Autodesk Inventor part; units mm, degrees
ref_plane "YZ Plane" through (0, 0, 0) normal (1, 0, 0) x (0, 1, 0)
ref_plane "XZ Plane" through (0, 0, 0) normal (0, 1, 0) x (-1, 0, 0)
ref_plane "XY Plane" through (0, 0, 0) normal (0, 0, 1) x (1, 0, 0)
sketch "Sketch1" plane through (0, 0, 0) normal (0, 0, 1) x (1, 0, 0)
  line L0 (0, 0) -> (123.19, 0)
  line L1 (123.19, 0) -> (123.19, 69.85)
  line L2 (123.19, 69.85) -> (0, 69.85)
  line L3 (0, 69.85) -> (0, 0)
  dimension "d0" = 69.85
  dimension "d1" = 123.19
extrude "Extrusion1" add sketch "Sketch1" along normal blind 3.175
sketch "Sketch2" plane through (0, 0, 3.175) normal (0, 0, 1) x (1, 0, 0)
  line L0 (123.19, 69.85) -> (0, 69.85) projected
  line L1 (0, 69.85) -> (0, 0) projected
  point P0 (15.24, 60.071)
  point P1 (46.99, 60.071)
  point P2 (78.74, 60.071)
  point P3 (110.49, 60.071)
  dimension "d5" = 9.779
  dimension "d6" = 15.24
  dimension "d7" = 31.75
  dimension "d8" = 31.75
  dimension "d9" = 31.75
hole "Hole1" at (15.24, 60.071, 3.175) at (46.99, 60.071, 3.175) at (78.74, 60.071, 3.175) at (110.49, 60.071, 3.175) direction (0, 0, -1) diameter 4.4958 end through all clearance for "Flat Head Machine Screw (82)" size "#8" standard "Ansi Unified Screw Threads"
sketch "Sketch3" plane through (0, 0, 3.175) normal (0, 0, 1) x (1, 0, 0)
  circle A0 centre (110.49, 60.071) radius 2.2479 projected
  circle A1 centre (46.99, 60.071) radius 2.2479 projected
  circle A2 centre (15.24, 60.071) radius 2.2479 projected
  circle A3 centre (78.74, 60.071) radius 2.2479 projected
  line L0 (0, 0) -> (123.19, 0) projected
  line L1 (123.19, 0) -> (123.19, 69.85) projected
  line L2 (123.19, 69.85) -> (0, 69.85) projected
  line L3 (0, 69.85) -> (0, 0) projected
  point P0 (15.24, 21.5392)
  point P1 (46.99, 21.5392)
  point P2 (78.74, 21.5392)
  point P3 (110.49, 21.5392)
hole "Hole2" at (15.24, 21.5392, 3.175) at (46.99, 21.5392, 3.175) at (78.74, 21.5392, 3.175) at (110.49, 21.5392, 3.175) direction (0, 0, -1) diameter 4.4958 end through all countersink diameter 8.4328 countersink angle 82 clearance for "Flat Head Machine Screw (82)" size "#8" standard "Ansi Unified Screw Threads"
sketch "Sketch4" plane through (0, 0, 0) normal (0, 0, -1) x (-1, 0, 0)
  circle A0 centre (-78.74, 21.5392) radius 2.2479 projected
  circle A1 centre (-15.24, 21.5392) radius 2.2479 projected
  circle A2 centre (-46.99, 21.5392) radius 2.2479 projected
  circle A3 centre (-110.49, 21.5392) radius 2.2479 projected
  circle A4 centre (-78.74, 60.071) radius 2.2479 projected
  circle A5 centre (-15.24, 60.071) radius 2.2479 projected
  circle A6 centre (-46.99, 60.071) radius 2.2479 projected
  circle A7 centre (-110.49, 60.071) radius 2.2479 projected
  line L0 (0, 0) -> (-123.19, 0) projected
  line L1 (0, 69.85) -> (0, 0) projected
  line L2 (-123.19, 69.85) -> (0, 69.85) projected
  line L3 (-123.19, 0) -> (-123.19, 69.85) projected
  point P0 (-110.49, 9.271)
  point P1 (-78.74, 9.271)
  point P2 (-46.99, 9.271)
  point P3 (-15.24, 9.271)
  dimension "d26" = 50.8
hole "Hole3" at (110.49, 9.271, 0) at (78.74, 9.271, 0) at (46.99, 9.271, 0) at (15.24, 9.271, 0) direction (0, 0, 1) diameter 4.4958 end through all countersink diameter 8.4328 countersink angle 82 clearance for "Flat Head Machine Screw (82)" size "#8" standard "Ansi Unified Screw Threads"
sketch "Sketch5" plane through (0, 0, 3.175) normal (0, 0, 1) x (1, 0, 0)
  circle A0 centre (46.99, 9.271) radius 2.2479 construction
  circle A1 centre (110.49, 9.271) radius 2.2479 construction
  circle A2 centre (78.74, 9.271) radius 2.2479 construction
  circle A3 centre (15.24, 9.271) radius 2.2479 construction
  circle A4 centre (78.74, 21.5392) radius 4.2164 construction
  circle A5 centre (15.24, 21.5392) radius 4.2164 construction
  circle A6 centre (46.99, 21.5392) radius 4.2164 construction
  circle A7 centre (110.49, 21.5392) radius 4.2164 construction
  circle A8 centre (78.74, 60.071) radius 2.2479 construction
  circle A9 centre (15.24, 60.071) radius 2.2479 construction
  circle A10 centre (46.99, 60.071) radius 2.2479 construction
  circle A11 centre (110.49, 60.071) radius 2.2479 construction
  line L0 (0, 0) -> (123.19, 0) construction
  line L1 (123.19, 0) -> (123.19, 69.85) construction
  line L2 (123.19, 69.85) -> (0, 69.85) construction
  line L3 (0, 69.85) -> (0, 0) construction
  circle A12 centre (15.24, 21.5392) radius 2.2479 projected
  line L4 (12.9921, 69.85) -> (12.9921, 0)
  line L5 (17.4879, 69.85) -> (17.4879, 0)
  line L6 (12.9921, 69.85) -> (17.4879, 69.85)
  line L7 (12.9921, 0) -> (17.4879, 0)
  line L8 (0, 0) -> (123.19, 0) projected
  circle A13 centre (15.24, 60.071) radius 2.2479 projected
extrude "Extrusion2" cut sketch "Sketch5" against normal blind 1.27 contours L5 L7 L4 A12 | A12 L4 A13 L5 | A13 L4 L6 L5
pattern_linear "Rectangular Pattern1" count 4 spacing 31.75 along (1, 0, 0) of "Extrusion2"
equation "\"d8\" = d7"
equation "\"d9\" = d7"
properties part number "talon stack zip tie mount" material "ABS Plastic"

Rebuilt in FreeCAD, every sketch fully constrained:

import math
import FreeCAD as App
import Part
import Sketcher
from FreeCAD import Vector
Q = App.Units.Quantity

doc = App.newDocument("Part")
params = doc.addObject("Spreadsheet::Sheet", "Params")
for row, (alias, value) in enumerate([
    ("sketch1_width", "4.85 in"),
    ("sketch1_height", "2.75 in"),
    ("pad1_length", "0.125 in"),
    ("sketch2_diameter", "0.177 in"),
    ("hole_diameter", "0.177 in"),
    ("sketch3_diameter", "0.177 in"),
    ("hole2_diameter", "0.177 in"),
    ("hole2_csink_diameter", "0.332 in"),
    ("sketch4_diameter", "0.177 in"),
    ("hole3_diameter", "0.177 in"),
    ("hole3_csink_diameter", "0.332 in"),
    ("sketch5_height", "0.848 in"),
    ("sketch5_height2", "1.517 in"),
    ("sketch5_height3", "0.385 in"),
    ("pocket1_length", "0.05 in"),
    ("linearpattern_pitch", "1.25 in"),
], start=1):
    params.set(f"A{row}", alias)
    params.set(f"B{row}", "=" + value)
    params.setAlias(f"B{row}", alias)

body = doc.addObject("PartDesign::Body", "Body")

# Sketch on XY plane
sketch1 = doc.addObject("Sketcher::SketchObject", "Sketch")
body.addObject(sketch1)
sketch1.AttachmentSupport = (doc.XY_Plane, [""])
sketch1.MapMode = "FlatFace"
sketch1.addGeometry(Part.LineSegment(Vector(0, 69.85, 0), Vector(0, 0, 0)), False)
sketch1.addGeometry(Part.LineSegment(Vector(0, 0, 0), Vector(123.19, 0, 0)), False)
sketch1.addGeometry(Part.LineSegment(Vector(123.19, 0, 0), Vector(123.19, 69.85, 0)), False)
sketch1.addGeometry(Part.LineSegment(Vector(123.19, 69.85, 0), Vector(0, 69.85, 0)), False)
sketch1.addConstraint(Sketcher.Constraint("Coincident", 0, 2, 1, 1))
sketch1.addConstraint(Sketcher.Constraint("Coincident", 1, 2, 2, 1))
sketch1.addConstraint(Sketcher.Constraint("Coincident", 2, 2, 3, 1))
sketch1.addConstraint(Sketcher.Constraint("Coincident", 3, 2, 0, 1))
sketch1.addConstraint(Sketcher.Constraint("Vertical", 0))
sketch1.addConstraint(Sketcher.Constraint("Horizontal", 1))
sketch1.addConstraint(Sketcher.Constraint("Vertical", 2))
sketch1.addConstraint(Sketcher.Constraint("Horizontal", 3))
sketch1.addConstraint(Sketcher.Constraint("Coincident", 0, 2, -1, 1))
sketch1.addConstraint(Sketcher.Constraint("DistanceX", 1, 1, 1, 2, Q("4.85 in")))
sketch1.addConstraint(Sketcher.Constraint("DistanceY", 0, 2, 0, 1, Q("2.75 in")))
sketch1.setExpression("Constraints[9]", "Params.sketch1_width")
sketch1.setExpression("Constraints[10]", "Params.sketch1_height")
pad1 = doc.addObject("PartDesign::Pad", "Pad")
body.addObject(pad1)
pad1.Profile = sketch1
pad1.setExpression("Length", "Params.pad1_length")

# Sketch on XY plane
sketch2 = doc.addObject("Sketcher::SketchObject", "Sketch001")
body.addObject(sketch2)
sketch2.AttachmentSupport = (doc.XY_Plane, [""])
sketch2.MapMode = "FlatFace"
sketch2.AttachmentOffset = App.Placement(Vector(0, 0, 0.125 * 25.4), App.Rotation())
sketch2.addGeometry(Part.Circle(Vector(15.24, 60.071, 0), Vector(0, 0, 1), 2.2479), False)
sketch2.addGeometry(Part.Circle(Vector(46.99, 60.071, 0), Vector(0, 0, 1), 2.2479), False)
sketch2.addGeometry(Part.Circle(Vector(78.74, 60.071, 0), Vector(0, 0, 1), 2.2479), False)
sketch2.addGeometry(Part.Circle(Vector(110.49, 60.071, 0), Vector(0, 0, 1), 2.2479), False)
sketch2.addConstraint(Sketcher.Constraint("Equal", 0, 1))
sketch2.addConstraint(Sketcher.Constraint("Equal", 1, 2))
sketch2.addConstraint(Sketcher.Constraint("Equal", 2, 3))
sketch2.addConstraint(Sketcher.Constraint("Horizontal", 0, 3, 1, 3))
sketch2.addConstraint(Sketcher.Constraint("Horizontal", 1, 3, 2, 3))
sketch2.addConstraint(Sketcher.Constraint("Horizontal", 2, 3, 3, 3))
sketch2.addConstraint(Sketcher.Constraint("Diameter", 0, Q("0.177 in")))
sketch2.addConstraint(Sketcher.Constraint("DistanceX", -1, 1, 0, 3, Q("0.6 in")))
sketch2.addConstraint(Sketcher.Constraint("DistanceX", -1, 1, 2, 3, Q("3.1 in")))
sketch2.addConstraint(Sketcher.Constraint("DistanceX", 1, 3, 3, 3, Q("2.5 in")))
sketch2.addConstraint(Sketcher.Constraint("DistanceX", -1, 1, 1, 3, Q("1.85 in")))
sketch2.addConstraint(Sketcher.Constraint("DistanceY", -1, 1, 0, 3, Q("2.365 in")))
sketch2.setExpression("Constraints[6]", "Params.sketch2_diameter")
doc.recompute()
hole = doc.addObject("PartDesign::Hole", "Hole")
body.addObject(hole)
hole.Profile = sketch2
hole.ThreadType = "None"
hole.setExpression("Diameter", "Params.hole_diameter")
hole.DepthType = "ThroughAll"

# Sketch on XY plane
sketch3 = doc.addObject("Sketcher::SketchObject", "Sketch002")
body.addObject(sketch3)
sketch3.AttachmentSupport = (doc.XY_Plane, [""])
sketch3.MapMode = "FlatFace"
sketch3.AttachmentOffset = App.Placement(Vector(0, 0, 0.125 * 25.4), App.Rotation())
sketch3.addGeometry(Part.Circle(Vector(15.24, 21.5392, 0), Vector(0, 0, 1), 2.2479), False)
sketch3.addGeometry(Part.Circle(Vector(46.99, 21.5392, 0), Vector(0, 0, 1), 2.2479), False)
sketch3.addGeometry(Part.Circle(Vector(78.74, 21.5392, 0), Vector(0, 0, 1), 2.2479), False)
sketch3.addGeometry(Part.Circle(Vector(110.49, 21.5392, 0), Vector(0, 0, 1), 2.2479), False)
sketch3.addConstraint(Sketcher.Constraint("Equal", 0, 1))
sketch3.addConstraint(Sketcher.Constraint("Equal", 1, 2))
sketch3.addConstraint(Sketcher.Constraint("Equal", 2, 3))
sketch3.addConstraint(Sketcher.Constraint("Horizontal", 0, 3, 1, 3))
sketch3.addConstraint(Sketcher.Constraint("Horizontal", 1, 3, 2, 3))
sketch3.addConstraint(Sketcher.Constraint("Horizontal", 2, 3, 3, 3))
sketch3.addConstraint(Sketcher.Constraint("Diameter", 0, Q("0.177 in")))
sketch3.addConstraint(Sketcher.Constraint("DistanceX", -1, 1, 0, 3, Q("0.6 in")))
sketch3.addConstraint(Sketcher.Constraint("DistanceX", -1, 1, 2, 3, Q("3.1 in")))
sketch3.addConstraint(Sketcher.Constraint("DistanceX", 1, 3, 3, 3, Q("2.5 in")))
sketch3.addConstraint(Sketcher.Constraint("DistanceX", -1, 1, 1, 3, Q("1.85 in")))
sketch3.addConstraint(Sketcher.Constraint("DistanceY", -1, 1, 0, 3, Q("0.848 in")))
sketch3.setExpression("Constraints[6]", "Params.sketch3_diameter")
doc.recompute()
hole2 = doc.addObject("PartDesign::Hole", "Hole001")
body.addObject(hole2)
hole2.Profile = sketch3
hole2.ThreadType = "None"
hole2.setExpression("Diameter", "Params.hole2_diameter")
hole2.DepthType = "ThroughAll"
hole2.HoleCutType = "Countersink"
hole2.setExpression("HoleCutDiameter", "Params.hole2_csink_diameter")
hole2.HoleCutCountersinkAngle = 82

# Sketch on XY plane
sketch4 = doc.addObject("Sketcher::SketchObject", "Sketch003")
body.addObject(sketch4)
sketch4.AttachmentSupport = (doc.XY_Plane, [""])
sketch4.MapMode = "FlatFace"
sketch4.addGeometry(Part.Circle(Vector(110.49, 9.271, 0), Vector(0, 0, 1), 2.2479), False)
sketch4.addGeometry(Part.Circle(Vector(78.74, 9.271, 0), Vector(0, 0, 1), 2.2479), False)
sketch4.addGeometry(Part.Circle(Vector(46.99, 9.271, 0), Vector(0, 0, 1), 2.2479), False)
sketch4.addGeometry(Part.Circle(Vector(15.24, 9.271, 0), Vector(0, 0, 1), 2.2479), False)
sketch4.addConstraint(Sketcher.Constraint("Equal", 0, 1))
sketch4.addConstraint(Sketcher.Constraint("Equal", 1, 2))
sketch4.addConstraint(Sketcher.Constraint("Equal", 2, 3))
sketch4.addConstraint(Sketcher.Constraint("Horizontal", 0, 3, 1, 3))
sketch4.addConstraint(Sketcher.Constraint("Horizontal", 1, 3, 2, 3))
sketch4.addConstraint(Sketcher.Constraint("Horizontal", 2, 3, 3, 3))
sketch4.addConstraint(Sketcher.Constraint("Diameter", 0, Q("0.177 in")))
sketch4.addConstraint(Sketcher.Constraint("DistanceX", -1, 1, 1, 3, Q("3.1 in")))
sketch4.addConstraint(Sketcher.Constraint("DistanceX", -1, 1, 3, 3, Q("0.6 in")))
sketch4.addConstraint(Sketcher.Constraint("DistanceX", 2, 3, 0, 3, Q("2.5 in")))
sketch4.addConstraint(Sketcher.Constraint("DistanceX", -1, 1, 0, 3, Q("4.35 in")))
sketch4.addConstraint(Sketcher.Constraint("DistanceY", -1, 1, 0, 3, Q("0.365 in")))
sketch4.setExpression("Constraints[6]", "Params.sketch4_diameter")
doc.recompute()
hole3 = doc.addObject("PartDesign::Hole", "Hole002")
body.addObject(hole3)
hole3.Profile = sketch4
hole3.ThreadType = "None"
hole3.setExpression("Diameter", "Params.hole3_diameter")
hole3.DepthType = "ThroughAll"
hole3.HoleCutType = "Countersink"
hole3.setExpression("HoleCutDiameter", "Params.hole3_csink_diameter")
hole3.HoleCutCountersinkAngle = 82
hole3.Reversed = True

# Sketch on XY plane
sketch5 = doc.addObject("Sketcher::SketchObject", "Sketch004")
body.addObject(sketch5)
sketch5.AttachmentSupport = (doc.XY_Plane, [""])
sketch5.MapMode = "FlatFace"
sketch5.AttachmentOffset = App.Placement(Vector(0, 0, 0.125 * 25.4), App.Rotation())
sketch5.addGeometry(Part.LineSegment(Vector(17.4879, 0, 0), Vector(17.4879, 21.5392, 0)), False)
sketch5.addGeometry(Part.ArcOfCircle(Part.Circle(Vector(15.24, 21.5392, 0), Vector(0, 0, 1), 2.2479), math.radians(180), math.radians(360)), False)
sketch5.addGeometry(Part.LineSegment(Vector(12.9921, 21.5392, 0), Vector(12.9921, 0, 0)), False)
sketch5.addGeometry(Part.LineSegment(Vector(12.9921, 0, 0), Vector(17.4879, 0, 0)), False)
sketch5.addGeometry(Part.ArcOfCircle(Part.Circle(Vector(15.24, 21.5392, 0), Vector(0, 0, 1), 2.2479), math.radians(0), math.radians(180)), False)
sketch5.addGeometry(Part.LineSegment(Vector(17.4879, 21.5392, 0), Vector(17.4879, 60.071, 0)), False)
sketch5.addGeometry(Part.ArcOfCircle(Part.Circle(Vector(15.24, 60.071, 0), Vector(0, 0, 1), 2.2479), math.radians(180), math.radians(360)), False)
sketch5.addGeometry(Part.LineSegment(Vector(12.9921, 60.071, 0), Vector(12.9921, 21.5392, 0)), False)
sketch5.addGeometry(Part.ArcOfCircle(Part.Circle(Vector(15.24, 60.071, 0), Vector(0, 0, 1), 2.2479), math.radians(0), math.radians(180)), False)
sketch5.addGeometry(Part.LineSegment(Vector(17.4879, 60.071, 0), Vector(17.4879, 69.85, 0)), False)
sketch5.addGeometry(Part.LineSegment(Vector(17.4879, 69.85, 0), Vector(12.9921, 69.85, 0)), False)
sketch5.addGeometry(Part.LineSegment(Vector(12.9921, 69.85, 0), Vector(12.9921, 60.071, 0)), False)
sketch5.addConstraint(Sketcher.Constraint("Tangent", 0, 2, 1, 2))
sketch5.addConstraint(Sketcher.Constraint("Tangent", 1, 1, 2, 1))
sketch5.addConstraint(Sketcher.Constraint("Coincident", 2, 2, 3, 1))
sketch5.addConstraint(Sketcher.Constraint("Coincident", 3, 2, 0, 1))
sketch5.addConstraint(Sketcher.Constraint("Tangent", 4, 1, 5, 1))
sketch5.addConstraint(Sketcher.Constraint("Tangent", 5, 2, 6, 2))
sketch5.addConstraint(Sketcher.Constraint("Tangent", 6, 1, 7, 1))
sketch5.addConstraint(Sketcher.Constraint("Tangent", 7, 2, 4, 2))
sketch5.addConstraint(Sketcher.Constraint("Tangent", 8, 1, 9, 1))
sketch5.addConstraint(Sketcher.Constraint("Coincident", 9, 2, 10, 1))
sketch5.addConstraint(Sketcher.Constraint("Coincident", 10, 2, 11, 1))
sketch5.addConstraint(Sketcher.Constraint("Tangent", 11, 2, 8, 2))
sketch5.addConstraint(Sketcher.Constraint("Vertical", 0))
sketch5.addConstraint(Sketcher.Constraint("Vertical", 2))
sketch5.addConstraint(Sketcher.Constraint("Horizontal", 3))
sketch5.addConstraint(Sketcher.Constraint("Vertical", 5))
sketch5.addConstraint(Sketcher.Constraint("Vertical", 7))
sketch5.addConstraint(Sketcher.Constraint("Vertical", 9))
sketch5.addConstraint(Sketcher.Constraint("Horizontal", 10))
sketch5.addConstraint(Sketcher.Constraint("Vertical", 11))
sketch5.addConstraint(Sketcher.Constraint("Coincident", 4, 3, 1, 3))
sketch5.addConstraint(Sketcher.Constraint("Coincident", 8, 3, 6, 3))
sketch5.addConstraint(Sketcher.Constraint("Equal", 1, 4))
sketch5.addConstraint(Sketcher.Constraint("Equal", 6, 8))
sketch5.addConstraint(Sketcher.Constraint("PointOnObject", 2, 2, -1))
sketch5.addConstraint(Sketcher.Constraint("DistanceX", -1, 1, 1, 3, Q("0.6 in")))
sketch5.addConstraint(Sketcher.Constraint("Radius", 1, Q("0.0885 in")))
sketch5.addConstraint(Sketcher.Constraint("DistanceY", 0, 1, 0, 2, Q("0.848 in")))
sketch5.addConstraint(Sketcher.Constraint("DistanceY", 5, 1, 5, 2, Q("1.517 in")))
sketch5.addConstraint(Sketcher.Constraint("DistanceY", 9, 1, 9, 2, Q("0.385 in")))
sketch5.setExpression("Constraints[27]", "Params.sketch5_height")
sketch5.setExpression("Constraints[28]", "Params.sketch5_height2")
sketch5.setExpression("Constraints[29]", "Params.sketch5_height3")
pocket1 = doc.addObject("PartDesign::Pocket", "Pocket")
body.addObject(pocket1)
pocket1.Profile = sketch5
pocket1.setExpression("Length", "Params.pocket1_length")
doc.recompute()

linearpattern = doc.addObject("PartDesign::LinearPattern", "LinearPattern")
body.addObject(linearpattern)
linearpattern.Originals = [pocket1]
linearpattern.Direction = (doc.X_Axis, [""])
linearpattern.Mode = "offset"
linearpattern.setExpression("Offset", "Params.linearpattern_pitch")
linearpattern.Occurrences = 4
body.Tip = linearpattern

doc.recompute()
